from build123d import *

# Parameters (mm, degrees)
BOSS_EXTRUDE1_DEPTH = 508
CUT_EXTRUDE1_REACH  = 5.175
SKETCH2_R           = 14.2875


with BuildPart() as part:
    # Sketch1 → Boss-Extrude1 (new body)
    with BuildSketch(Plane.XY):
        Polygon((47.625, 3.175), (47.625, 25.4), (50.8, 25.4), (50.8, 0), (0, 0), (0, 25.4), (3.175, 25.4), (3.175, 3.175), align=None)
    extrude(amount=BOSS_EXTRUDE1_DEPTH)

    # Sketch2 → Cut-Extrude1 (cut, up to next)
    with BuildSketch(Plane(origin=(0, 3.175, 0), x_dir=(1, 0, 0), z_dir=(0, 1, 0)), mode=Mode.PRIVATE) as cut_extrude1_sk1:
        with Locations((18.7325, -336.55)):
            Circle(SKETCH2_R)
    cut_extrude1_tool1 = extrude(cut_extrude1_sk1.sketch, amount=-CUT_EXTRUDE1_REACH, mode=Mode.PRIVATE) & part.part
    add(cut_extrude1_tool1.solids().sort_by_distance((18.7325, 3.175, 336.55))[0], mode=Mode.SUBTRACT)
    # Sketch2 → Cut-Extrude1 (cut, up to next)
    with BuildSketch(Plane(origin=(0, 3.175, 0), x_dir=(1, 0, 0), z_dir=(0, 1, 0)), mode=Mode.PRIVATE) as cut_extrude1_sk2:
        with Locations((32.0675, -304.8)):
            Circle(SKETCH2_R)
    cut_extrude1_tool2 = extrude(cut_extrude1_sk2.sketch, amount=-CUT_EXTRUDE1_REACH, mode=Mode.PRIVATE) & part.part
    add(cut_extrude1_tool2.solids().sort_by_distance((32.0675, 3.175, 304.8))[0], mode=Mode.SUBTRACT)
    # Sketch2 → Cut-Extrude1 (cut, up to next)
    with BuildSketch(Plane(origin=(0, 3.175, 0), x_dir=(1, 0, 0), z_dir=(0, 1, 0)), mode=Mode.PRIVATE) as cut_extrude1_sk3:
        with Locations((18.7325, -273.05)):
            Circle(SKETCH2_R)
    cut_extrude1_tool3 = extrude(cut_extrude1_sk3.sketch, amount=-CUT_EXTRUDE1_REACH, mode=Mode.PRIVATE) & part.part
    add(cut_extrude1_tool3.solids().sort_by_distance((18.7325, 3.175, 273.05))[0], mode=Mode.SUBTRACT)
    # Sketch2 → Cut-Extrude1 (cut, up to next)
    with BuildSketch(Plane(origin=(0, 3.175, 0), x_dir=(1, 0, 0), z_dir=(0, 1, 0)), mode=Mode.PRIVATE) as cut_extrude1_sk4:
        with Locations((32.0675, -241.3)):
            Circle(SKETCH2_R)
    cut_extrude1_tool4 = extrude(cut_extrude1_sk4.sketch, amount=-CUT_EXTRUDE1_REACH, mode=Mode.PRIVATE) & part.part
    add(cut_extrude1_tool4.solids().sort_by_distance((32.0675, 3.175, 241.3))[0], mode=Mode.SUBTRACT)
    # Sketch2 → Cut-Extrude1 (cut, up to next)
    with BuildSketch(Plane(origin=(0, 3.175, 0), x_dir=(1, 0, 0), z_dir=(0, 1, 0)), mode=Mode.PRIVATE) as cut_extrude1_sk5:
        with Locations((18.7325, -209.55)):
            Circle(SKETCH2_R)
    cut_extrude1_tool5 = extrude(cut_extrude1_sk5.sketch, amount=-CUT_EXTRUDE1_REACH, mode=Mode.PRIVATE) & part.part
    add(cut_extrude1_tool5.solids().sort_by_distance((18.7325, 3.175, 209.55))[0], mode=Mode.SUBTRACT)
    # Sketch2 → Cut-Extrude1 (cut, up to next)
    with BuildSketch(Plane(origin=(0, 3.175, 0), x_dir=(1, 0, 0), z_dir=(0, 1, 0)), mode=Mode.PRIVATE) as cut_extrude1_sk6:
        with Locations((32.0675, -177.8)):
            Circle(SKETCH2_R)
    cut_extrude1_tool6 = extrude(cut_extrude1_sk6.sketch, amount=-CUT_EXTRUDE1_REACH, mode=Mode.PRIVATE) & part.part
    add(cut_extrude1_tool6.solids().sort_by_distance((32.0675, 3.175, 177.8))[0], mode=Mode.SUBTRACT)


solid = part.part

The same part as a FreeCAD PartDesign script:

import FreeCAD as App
import Part
import Sketcher

V = App.Vector
Q = App.Units.Quantity


def add_polygon(sketch, points):
    """Adds a closed chain of lines whose ends are joined by coincident constraints."""
    first, n = sketch.GeometryCount, len(points)
    for a, b in zip(points, points[1:] + points[:1]):
        sketch.addGeometry(Part.LineSegment(App.Vector(*a, 0), App.Vector(*b, 0)), False)
    for i in range(n):
        sketch.addConstraint(Sketcher.Constraint("Coincident", first + i, 2, first + (i + 1) % n, 1))

doc = App.newDocument("Part")
body = doc.addObject("PartDesign::Body", "Body")

sketch1 = doc.addObject("Sketcher::SketchObject", "Sketch")
body.addObject(sketch1)
sketch1.AttachmentSupport = (doc.XY_Plane, [""])
sketch1.MapMode = "FlatFace"
add_polygon(sketch1, [(47.6, 25.4), (47.6, 3.2), (3.2, 3.2), (3.2, 25.4), (0, 25.4), (0, 0), (50.8, 0), (50.8, 25.4)])
sketch1.addConstraint([
    Sketcher.Constraint("Vertical", 0),
    Sketcher.Constraint("Horizontal", 1),
    Sketcher.Constraint("Vertical", 2),
    Sketcher.Constraint("Horizontal", 3),
    Sketcher.Constraint("Vertical", 4),
    Sketcher.Constraint("Horizontal", 5),
    Sketcher.Constraint("Vertical", 6),
    Sketcher.Constraint("Horizontal", 7),
    Sketcher.Constraint("Coincident", 4, 2, -1, 1),
    Sketcher.Constraint("Horizontal", 3, 2, 6, 2),
    Sketcher.Constraint("Equal", 3, 7),
    Sketcher.Constraint("DistanceX", 5, 1, 5, 2, Q("2 in")),
    Sketcher.Constraint("DistanceY", 4, 2, 4, 1, Q("1 in")),
    Sketcher.Constraint("DistanceX", 1, 2, 1, 1, Q("1.75 in")),
    Sketcher.Constraint("DistanceY", 0, 2, 0, 1, Q("0.875 in")),
])
pad1 = doc.addObject("PartDesign::Pad", "Pad")
body.addObject(pad1)
pad1.Profile = sketch1
pad1.Length = Q("20 in")

sketch2 = doc.addObject("Sketcher::SketchObject", "Sketch001")
body.addObject(sketch2)
sketch2.AttachmentSupport = (doc.XZ_Plane, [""])
sketch2.MapMode = "FlatFace"
sketch2.AttachmentOffset = App.Placement(V(0, 0, -0.125 * 25.4), App.Rotation())
sketch2.addGeometry(Part.Circle(V(19, 337, 0), V(0, 0, 1), 14), False)
sketch2.addConstraint([
    Sketcher.Constraint("Diameter", 0, Q("1.125 in")),
    Sketcher.Constraint("DistanceY", -1, 1, 0, 3, Q("13.25 in")),
    Sketcher.Constraint("DistanceX", -1, 1, 0, 3, Q("0.7375 in")),
])
pocket1 = doc.addObject("PartDesign::Pocket", "Pocket")
body.addObject(pocket1)
pocket1.Profile = sketch2
pocket1.Type = "UpToFirst"
pocket1.Reversed = True

sketch3 = doc.addObject("Sketcher::SketchObject", "Sketch002")
body.addObject(sketch3)
sketch3.AttachmentSupport = (doc.XZ_Plane, [""])
sketch3.MapMode = "FlatFace"
sketch3.AttachmentOffset = App.Placement(V(0, 0, -0.125 * 25.4), App.Rotation())
sketch3.addGeometry(Part.Circle(V(32, 305, 0), V(0, 0, 1), 14), False)
sketch3.addConstraint([
    Sketcher.Constraint("Diameter", 0, Q("1.125 in")),
    Sketcher.Constraint("DistanceY", -1, 1, 0, 3, Q("12 in")),
    Sketcher.Constraint("DistanceX", -1, 1, 0, 3, Q("1.2625 in")),
])
pocket2 = doc.addObject("PartDesign::Pocket", "Pocket001")
body.addObject(pocket2)
pocket2.Profile = sketch3
pocket2.Type = "UpToFirst"
pocket2.Reversed = True

sketch4 = doc.addObject("Sketcher::SketchObject", "Sketch003")
body.addObject(sketch4)
sketch4.AttachmentSupport = (doc.XZ_Plane, [""])
sketch4.MapMode = "FlatFace"
sketch4.AttachmentOffset = App.Placement(V(0, 0, -0.125 * 25.4), App.Rotation())
sketch4.addGeometry(Part.Circle(V(19, 273, 0), V(0, 0, 1), 14), False)
sketch4.addConstraint([
    Sketcher.Constraint("Diameter", 0, Q("1.125 in")),
    Sketcher.Constraint("DistanceY", -1, 1, 0, 3, Q("10.75 in")),
    Sketcher.Constraint("DistanceX", -1, 1, 0, 3, Q("0.7375 in")),
])
pocket3 = doc.addObject("PartDesign::Pocket", "Pocket002")
body.addObject(pocket3)
pocket3.Profile = sketch4
pocket3.Type = "UpToFirst"
pocket3.Reversed = True

sketch5 = doc.addObject("Sketcher::SketchObject", "Sketch004")
body.addObject(sketch5)
sketch5.AttachmentSupport = (doc.XZ_Plane, [""])
sketch5.MapMode = "FlatFace"
sketch5.AttachmentOffset = App.Placement(V(0, 0, -0.125 * 25.4), App.Rotation())
sketch5.addGeometry(Part.Circle(V(32, 241, 0), V(0, 0, 1), 14), False)
sketch5.addConstraint([
    Sketcher.Constraint("Diameter", 0, Q("1.125 in")),
    Sketcher.Constraint("DistanceY", -1, 1, 0, 3, Q("9.5 in")),
    Sketcher.Constraint("DistanceX", -1, 1, 0, 3, Q("1.2625 in")),
])
pocket4 = doc.addObject("PartDesign::Pocket", "Pocket003")
body.addObject(pocket4)
pocket4.Profile = sketch5
pocket4.Type = "UpToFirst"
pocket4.Reversed = True

sketch6 = doc.addObject("Sketcher::SketchObject", "Sketch005")
body.addObject(sketch6)
sketch6.AttachmentSupport = (doc.XZ_Plane, [""])
sketch6.MapMode = "FlatFace"
sketch6.AttachmentOffset = App.Placement(V(0, 0, -0.125 * 25.4), App.Rotation())
sketch6.addGeometry(Part.Circle(V(19, 210, 0), V(0, 0, 1), 14), False)
sketch6.addConstraint([
    Sketcher.Constraint("Diameter", 0, Q("1.125 in")),
    Sketcher.Constraint("DistanceY", -1, 1, 0, 3, Q("8.25 in")),
    Sketcher.Constraint("DistanceX", -1, 1, 0, 3, Q("0.7375 in")),
])
pocket5 = doc.addObject("PartDesign::Pocket", "Pocket004")
body.addObject(pocket5)
pocket5.Profile = sketch6
pocket5.Type = "UpToFirst"
pocket5.Reversed = True

sketch7 = doc.addObject("Sketcher::SketchObject", "Sketch006")
body.addObject(sketch7)
sketch7.AttachmentSupport = (doc.XZ_Plane, [""])
sketch7.MapMode = "FlatFace"
sketch7.AttachmentOffset = App.Placement(V(0, 0, -0.125 * 25.4), App.Rotation())
sketch7.addGeometry(Part.Circle(V(32, 178, 0), V(0, 0, 1), 14), False)
sketch7.addConstraint([
    Sketcher.Constraint("Diameter", 0, Q("1.125 in")),
    Sketcher.Constraint("DistanceY", -1, 1, 0, 3, Q("7 in")),
    Sketcher.Constraint("DistanceX", -1, 1, 0, 3, Q("1.2625 in")),
])
pocket6 = doc.addObject("PartDesign::Pocket", "Pocket005")
body.addObject(pocket6)
pocket6.Profile = sketch7
pocket6.Type = "UpToFirst"
pocket6.Reversed = True

doc.recompute()
